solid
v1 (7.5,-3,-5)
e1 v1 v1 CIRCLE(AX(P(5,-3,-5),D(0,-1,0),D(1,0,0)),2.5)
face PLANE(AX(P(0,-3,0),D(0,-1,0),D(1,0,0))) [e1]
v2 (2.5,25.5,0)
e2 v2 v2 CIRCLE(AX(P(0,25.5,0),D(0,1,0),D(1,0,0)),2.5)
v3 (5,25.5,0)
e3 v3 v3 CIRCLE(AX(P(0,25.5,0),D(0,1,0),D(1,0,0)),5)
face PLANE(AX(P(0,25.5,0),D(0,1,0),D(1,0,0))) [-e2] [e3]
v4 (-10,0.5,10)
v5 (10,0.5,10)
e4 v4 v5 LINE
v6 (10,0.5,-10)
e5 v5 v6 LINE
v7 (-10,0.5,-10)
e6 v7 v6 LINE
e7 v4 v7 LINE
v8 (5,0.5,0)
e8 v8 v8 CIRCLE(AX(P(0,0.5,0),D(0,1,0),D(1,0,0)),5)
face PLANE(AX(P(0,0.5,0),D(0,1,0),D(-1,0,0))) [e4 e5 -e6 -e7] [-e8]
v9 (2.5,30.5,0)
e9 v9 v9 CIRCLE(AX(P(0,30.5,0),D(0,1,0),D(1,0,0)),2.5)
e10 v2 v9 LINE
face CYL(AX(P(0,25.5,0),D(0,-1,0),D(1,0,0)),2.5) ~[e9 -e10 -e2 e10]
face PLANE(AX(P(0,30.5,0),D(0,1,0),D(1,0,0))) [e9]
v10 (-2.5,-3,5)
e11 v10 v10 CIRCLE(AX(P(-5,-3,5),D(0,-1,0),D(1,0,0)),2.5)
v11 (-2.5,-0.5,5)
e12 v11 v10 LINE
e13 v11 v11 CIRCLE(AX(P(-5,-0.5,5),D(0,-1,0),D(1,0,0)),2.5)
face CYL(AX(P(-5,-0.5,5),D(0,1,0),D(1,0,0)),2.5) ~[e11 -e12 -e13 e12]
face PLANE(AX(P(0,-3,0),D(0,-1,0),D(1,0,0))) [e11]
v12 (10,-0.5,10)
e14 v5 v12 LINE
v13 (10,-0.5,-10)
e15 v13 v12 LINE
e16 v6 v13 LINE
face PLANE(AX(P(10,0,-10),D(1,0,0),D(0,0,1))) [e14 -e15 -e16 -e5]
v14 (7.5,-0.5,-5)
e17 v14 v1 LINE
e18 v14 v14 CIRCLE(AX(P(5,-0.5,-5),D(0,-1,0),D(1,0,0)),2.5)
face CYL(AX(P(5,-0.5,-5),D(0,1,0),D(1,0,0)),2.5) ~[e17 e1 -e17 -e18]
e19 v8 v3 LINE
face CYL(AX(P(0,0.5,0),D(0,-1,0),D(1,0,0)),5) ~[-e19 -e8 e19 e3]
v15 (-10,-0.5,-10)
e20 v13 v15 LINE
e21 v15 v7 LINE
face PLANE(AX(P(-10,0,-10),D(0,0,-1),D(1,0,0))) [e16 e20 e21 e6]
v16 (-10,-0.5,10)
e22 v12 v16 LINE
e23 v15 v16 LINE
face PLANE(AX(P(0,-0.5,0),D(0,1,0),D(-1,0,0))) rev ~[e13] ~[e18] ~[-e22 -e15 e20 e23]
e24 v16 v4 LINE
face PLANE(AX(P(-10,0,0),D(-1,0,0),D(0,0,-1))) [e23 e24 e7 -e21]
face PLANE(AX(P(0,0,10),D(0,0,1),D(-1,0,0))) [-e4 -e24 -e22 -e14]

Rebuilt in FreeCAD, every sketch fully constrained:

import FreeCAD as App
import Part
import Sketcher
Q = App.Units.Quantity

doc = App.newDocument("Part")
body = doc.addObject("PartDesign::Body", "Body")

# Sketch on XZ plane
sketch1 = doc.addObject("Sketcher::SketchObject", "Sketch")
body.addObject(sketch1)
sketch1.AttachmentSupport = (doc.XZ_Plane, [""])
sketch1.MapMode = "FlatFace"
sketch1.addGeometry([
    Part.LineSegment(App.Vector(-10, -10, 0), App.Vector(-10, 10, 0)),
    Part.LineSegment(App.Vector(-10, 10, 0), App.Vector(10, 10, 0)),
    Part.LineSegment(App.Vector(10, 10, 0), App.Vector(10, -10, 0)),
    Part.LineSegment(App.Vector(10, -10, 0), App.Vector(-10, -10, 0)),
], False)
sketch1.addConstraint([
    Sketcher.Constraint("Coincident", 0, 2, 1, 1),
    Sketcher.Constraint("Coincident", 1, 2, 2, 1),
    Sketcher.Constraint("Coincident", 2, 2, 3, 1),
    Sketcher.Constraint("Coincident", 3, 2, 0, 1),
    Sketcher.Constraint("Vertical", 0),
    Sketcher.Constraint("Horizontal", 1),
    Sketcher.Constraint("Vertical", 2),
    Sketcher.Constraint("Horizontal", 3),
    Sketcher.Constraint("Symmetric", 0, 2, 2, 2, -1, 1),
    Sketcher.Constraint("Equal", 3, 0),
    Sketcher.Constraint("DistanceX", 1, 1, 1, 2, Q("20 mm")),
])
pad1 = doc.addObject("PartDesign::Pad", "Pad")
body.addObject(pad1)
pad1.Profile = sketch1
pad1.Length = 1
pad1.Midplane = True

# Sketch on XZ plane
sketch2 = doc.addObject("Sketcher::SketchObject", "Sketch001")
body.addObject(sketch2)
sketch2.AttachmentSupport = (doc.XZ_Plane, [""])
sketch2.MapMode = "FlatFace"
sketch2.AttachmentOffset = App.Placement(App.Vector(0, 0, 0.5), App.Rotation())
sketch2.addGeometry([
    Part.Circle(App.Vector(-5, 5, 0), App.Vector(0, 0, 1), 2.5),
    Part.Circle(App.Vector(5, -5, 0), App.Vector(0, 0, 1), 2.5),
], False)
sketch2.addConstraint([
    Sketcher.Constraint("Equal", 0, 1),
    Sketcher.Constraint("Symmetric", 0, 3, 1, 3, -1, 1),
    Sketcher.Constraint("Diameter", 0, Q("5 mm")),
    Sketcher.Constraint("DistanceX", 0, 3, -1, 1, Q("5 mm")),
    Sketcher.Constraint("DistanceY", -1, 1, 0, 3, Q("5 mm")),
])
pad2 = doc.addObject("PartDesign::Pad", "Pad001")
body.addObject(pad2)
pad2.Profile = sketch2
pad2.Length = 2.5

# Sketch on XZ plane
sketch3 = doc.addObject("Sketcher::SketchObject", "Sketch002")
body.addObject(sketch3)
sketch3.AttachmentSupport = (doc.XZ_Plane, [""])
sketch3.MapMode = "FlatFace"
sketch3.AttachmentOffset = App.Placement(App.Vector(0, 0, -0.5), App.Rotation())
sketch3.addGeometry(Part.Circle(App.Vector(0, 0, 0), App.Vector(0, 0, 1), 5), False)
sketch3.addConstraint([
    Sketcher.Constraint("Coincident", 0, 3, -1, 1),
    Sketcher.Constraint("Diameter", 0, Q("10 mm")),
])
pad3 = doc.addObject("PartDesign::Pad", "Pad002")
body.addObject(pad3)
pad3.Profile = sketch3
pad3.Length = 25
pad3.Reversed = True

# Sketch on XZ plane
sketch4 = doc.addObject("Sketcher::SketchObject", "Sketch003")
body.addObject(sketch4)
sketch4.AttachmentSupport = (doc.XZ_Plane, [""])
sketch4.MapMode = "FlatFace"
sketch4.AttachmentOffset = App.Placement(App.Vector(0, 0, -25.5), App.Rotation())
sketch4.addGeometry(Part.Circle(App.Vector(0, 0, 0), App.Vector(0, 0, 1), 2.5), False)
sketch4.addConstraint([
    Sketcher.Constraint("Coincident", 0, 3, -1, 1),
    Sketcher.Constraint("Diameter", 0, Q("5 mm")),
])
pad4 = doc.addObject("PartDesign::Pad", "Pad003")
body.addObject(pad4)
pad4.Profile = sketch4
pad4.Length = 5
pad4.Reversed = True

doc.recompute()
